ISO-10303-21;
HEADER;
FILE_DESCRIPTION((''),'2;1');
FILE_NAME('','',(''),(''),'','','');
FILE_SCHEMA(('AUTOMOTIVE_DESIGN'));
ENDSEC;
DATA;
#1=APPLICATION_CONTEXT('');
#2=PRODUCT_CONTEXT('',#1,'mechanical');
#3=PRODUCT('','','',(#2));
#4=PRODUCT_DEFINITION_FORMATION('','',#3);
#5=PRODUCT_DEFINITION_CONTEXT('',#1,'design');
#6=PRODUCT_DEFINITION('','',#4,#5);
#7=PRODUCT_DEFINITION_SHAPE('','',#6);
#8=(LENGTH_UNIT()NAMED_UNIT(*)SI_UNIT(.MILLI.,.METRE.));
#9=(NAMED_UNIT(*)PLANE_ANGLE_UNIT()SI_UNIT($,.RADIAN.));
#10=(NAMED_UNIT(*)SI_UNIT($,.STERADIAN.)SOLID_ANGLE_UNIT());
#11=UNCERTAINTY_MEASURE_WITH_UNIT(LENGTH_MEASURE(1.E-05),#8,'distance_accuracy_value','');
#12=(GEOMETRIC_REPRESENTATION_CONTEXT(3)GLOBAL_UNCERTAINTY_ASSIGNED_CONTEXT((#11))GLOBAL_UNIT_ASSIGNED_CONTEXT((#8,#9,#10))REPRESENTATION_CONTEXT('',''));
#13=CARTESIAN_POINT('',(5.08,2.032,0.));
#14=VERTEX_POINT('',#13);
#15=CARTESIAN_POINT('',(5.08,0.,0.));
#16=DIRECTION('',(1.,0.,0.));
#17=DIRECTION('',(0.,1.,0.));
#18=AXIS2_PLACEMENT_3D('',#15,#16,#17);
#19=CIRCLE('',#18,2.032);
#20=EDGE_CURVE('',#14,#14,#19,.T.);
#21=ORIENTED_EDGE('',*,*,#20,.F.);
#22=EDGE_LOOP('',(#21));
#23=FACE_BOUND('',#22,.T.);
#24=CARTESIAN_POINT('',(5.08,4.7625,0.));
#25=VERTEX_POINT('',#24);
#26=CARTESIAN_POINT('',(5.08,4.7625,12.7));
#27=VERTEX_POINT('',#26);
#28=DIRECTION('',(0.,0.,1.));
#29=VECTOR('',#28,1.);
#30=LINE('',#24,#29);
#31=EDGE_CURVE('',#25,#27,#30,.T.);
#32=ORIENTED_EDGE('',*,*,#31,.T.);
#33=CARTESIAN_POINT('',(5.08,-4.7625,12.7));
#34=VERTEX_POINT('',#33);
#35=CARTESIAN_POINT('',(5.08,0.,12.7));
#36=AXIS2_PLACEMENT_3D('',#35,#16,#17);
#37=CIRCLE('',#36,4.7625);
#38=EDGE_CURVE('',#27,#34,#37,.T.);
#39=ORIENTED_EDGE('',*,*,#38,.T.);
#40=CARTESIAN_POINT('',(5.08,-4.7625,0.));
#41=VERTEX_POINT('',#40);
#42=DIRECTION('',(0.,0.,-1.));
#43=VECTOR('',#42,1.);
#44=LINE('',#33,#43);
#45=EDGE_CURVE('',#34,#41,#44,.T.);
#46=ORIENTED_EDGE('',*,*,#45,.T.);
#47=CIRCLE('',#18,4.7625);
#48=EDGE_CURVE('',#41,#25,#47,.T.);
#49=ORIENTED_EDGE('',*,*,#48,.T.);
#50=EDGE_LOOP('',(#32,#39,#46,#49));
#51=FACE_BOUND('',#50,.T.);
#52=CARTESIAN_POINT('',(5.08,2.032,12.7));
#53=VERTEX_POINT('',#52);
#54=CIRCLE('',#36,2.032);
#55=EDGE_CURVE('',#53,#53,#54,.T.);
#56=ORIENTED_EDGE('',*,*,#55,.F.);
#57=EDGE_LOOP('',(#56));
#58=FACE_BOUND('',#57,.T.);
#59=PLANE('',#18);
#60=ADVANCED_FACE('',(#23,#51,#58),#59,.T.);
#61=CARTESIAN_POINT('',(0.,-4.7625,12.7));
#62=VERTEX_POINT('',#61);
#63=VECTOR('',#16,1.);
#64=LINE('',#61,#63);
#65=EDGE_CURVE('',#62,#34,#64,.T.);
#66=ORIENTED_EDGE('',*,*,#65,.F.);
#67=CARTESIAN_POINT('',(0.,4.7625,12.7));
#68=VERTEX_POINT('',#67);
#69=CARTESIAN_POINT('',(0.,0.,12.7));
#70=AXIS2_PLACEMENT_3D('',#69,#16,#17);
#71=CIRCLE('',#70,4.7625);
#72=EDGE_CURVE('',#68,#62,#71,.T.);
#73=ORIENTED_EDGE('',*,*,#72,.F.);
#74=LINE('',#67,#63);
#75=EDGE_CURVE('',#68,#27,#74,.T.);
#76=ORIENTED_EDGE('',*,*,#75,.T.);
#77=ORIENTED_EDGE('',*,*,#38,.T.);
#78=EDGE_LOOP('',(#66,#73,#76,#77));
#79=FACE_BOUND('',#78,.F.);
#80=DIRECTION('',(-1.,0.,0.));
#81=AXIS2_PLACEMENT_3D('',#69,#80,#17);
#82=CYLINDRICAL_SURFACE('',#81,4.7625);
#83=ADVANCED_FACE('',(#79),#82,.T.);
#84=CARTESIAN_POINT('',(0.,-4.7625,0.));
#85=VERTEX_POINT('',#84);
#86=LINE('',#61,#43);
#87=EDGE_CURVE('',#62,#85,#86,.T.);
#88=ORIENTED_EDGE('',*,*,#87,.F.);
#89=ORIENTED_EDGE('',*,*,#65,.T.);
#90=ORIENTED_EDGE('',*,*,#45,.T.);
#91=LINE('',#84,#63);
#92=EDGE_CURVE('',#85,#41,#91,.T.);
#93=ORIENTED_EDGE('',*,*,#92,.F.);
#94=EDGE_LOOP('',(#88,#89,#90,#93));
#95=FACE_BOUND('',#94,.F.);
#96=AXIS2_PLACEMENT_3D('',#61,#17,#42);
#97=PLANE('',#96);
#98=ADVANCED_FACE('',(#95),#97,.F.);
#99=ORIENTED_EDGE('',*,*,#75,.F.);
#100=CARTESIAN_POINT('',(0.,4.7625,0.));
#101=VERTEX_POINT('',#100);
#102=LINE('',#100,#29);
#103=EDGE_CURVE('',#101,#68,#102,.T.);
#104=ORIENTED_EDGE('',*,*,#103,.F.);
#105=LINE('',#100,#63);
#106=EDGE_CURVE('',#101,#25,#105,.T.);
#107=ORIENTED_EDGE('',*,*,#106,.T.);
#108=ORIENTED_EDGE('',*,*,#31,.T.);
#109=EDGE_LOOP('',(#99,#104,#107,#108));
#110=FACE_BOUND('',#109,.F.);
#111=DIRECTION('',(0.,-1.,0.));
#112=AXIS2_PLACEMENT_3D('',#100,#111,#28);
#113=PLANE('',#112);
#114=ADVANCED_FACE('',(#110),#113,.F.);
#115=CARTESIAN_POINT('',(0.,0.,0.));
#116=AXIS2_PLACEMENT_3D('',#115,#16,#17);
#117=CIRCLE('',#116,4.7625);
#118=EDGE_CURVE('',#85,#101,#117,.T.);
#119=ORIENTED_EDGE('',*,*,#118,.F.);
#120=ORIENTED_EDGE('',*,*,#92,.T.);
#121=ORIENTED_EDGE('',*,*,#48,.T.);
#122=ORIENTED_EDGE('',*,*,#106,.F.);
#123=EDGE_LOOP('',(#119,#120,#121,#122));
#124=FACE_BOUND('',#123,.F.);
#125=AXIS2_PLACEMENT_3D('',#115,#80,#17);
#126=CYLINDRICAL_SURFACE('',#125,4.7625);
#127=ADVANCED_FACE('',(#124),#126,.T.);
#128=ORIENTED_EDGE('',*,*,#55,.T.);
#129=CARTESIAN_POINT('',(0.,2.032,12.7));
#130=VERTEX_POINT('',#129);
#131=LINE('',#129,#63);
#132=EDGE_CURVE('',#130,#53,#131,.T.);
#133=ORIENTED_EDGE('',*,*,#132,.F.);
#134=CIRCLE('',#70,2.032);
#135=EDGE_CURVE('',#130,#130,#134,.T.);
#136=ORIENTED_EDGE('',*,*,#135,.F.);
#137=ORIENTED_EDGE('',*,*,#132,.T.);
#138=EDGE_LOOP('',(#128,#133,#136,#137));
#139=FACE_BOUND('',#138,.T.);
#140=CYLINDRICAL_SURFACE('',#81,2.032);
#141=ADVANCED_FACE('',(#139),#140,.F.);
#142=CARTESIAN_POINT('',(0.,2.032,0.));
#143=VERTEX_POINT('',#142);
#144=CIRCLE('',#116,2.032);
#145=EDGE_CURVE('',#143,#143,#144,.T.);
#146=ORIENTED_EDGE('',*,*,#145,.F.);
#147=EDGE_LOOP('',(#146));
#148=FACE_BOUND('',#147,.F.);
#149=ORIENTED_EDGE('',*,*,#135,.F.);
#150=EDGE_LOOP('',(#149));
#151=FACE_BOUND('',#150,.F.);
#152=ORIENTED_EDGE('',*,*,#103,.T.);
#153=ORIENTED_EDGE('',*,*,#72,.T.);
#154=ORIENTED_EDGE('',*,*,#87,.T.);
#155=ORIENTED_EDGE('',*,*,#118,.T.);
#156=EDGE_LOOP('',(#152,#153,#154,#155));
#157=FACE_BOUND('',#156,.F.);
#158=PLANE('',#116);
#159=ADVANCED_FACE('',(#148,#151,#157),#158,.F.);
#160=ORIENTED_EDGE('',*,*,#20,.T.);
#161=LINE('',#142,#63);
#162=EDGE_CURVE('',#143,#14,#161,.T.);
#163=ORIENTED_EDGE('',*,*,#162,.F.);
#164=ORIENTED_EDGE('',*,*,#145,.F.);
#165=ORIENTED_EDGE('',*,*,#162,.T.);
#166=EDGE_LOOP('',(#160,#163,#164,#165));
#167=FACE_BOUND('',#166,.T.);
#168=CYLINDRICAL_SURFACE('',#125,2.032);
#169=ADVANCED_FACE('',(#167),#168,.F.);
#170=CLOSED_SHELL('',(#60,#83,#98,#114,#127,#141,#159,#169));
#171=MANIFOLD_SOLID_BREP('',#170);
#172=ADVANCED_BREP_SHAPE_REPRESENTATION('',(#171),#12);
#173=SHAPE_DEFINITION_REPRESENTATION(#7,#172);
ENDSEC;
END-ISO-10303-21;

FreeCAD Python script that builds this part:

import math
import FreeCAD as App
import Part
import Sketcher
Q = App.Units.Quantity

doc = App.newDocument("Part")
body = doc.addObject("PartDesign::Body", "Body")

sketch1 = body.newObject("Sketcher::SketchObject", "Sketch")
sketch1.AttachmentSupport = (doc.getObject("YZ_Plane"), [""])
sketch1.MapMode = "FlatFace"
sketch1.addGeometry([
    Part.ArcOfCircle(Part.Circle(App.Vector(0, 0, 0), App.Vector(0, 0, 1), 4.7625), math.radians(180), math.radians(360)),
    Part.LineSegment(App.Vector(4.7625, 0, 0), App.Vector(4.7625, 12.7, 0)),
    Part.ArcOfCircle(Part.Circle(App.Vector(0, 12.7, 0), App.Vector(0, 0, 1), 4.7625), math.radians(0), math.radians(180)),
    Part.LineSegment(App.Vector(-4.7625, 12.7, 0), App.Vector(-4.7625, 0, 0)),
    Part.Circle(App.Vector(0, 0, 0), App.Vector(0, 0, 1), 2.032),
    Part.Circle(App.Vector(0, 12.7, 0), App.Vector(0, 0, 1), 2.032),
], False)
sketch1.addConstraint([
    Sketcher.Constraint("Tangent", 0, 2, 1, 1),
    Sketcher.Constraint("Tangent", 1, 2, 2, 1),
    Sketcher.Constraint("Tangent", 2, 2, 3, 1),
    Sketcher.Constraint("Tangent", 3, 2, 0, 1),
    Sketcher.Constraint("Vertical", 1),
    Sketcher.Constraint("Vertical", 3),
    Sketcher.Constraint("Coincident", 0, 3, -1, 1),
    Sketcher.Constraint("Coincident", 4, 3, -1, 1),
    Sketcher.Constraint("Coincident", 5, 3, 2, 3),
    Sketcher.Constraint("Equal", 4, 5),
    Sketcher.Constraint("Diameter", 4, Q("0.16 in")),
    Sketcher.Constraint("DistanceY", 1, 1, 1, 2, Q("0.5 in")),
    Sketcher.Constraint("Radius", 0, Q("0.1875 in")),
])
pad1 = body.newObject("PartDesign::Pad", "Pad")
pad1.Profile = sketch1
pad1.Length = Q("0.2 in")

doc.recompute()
